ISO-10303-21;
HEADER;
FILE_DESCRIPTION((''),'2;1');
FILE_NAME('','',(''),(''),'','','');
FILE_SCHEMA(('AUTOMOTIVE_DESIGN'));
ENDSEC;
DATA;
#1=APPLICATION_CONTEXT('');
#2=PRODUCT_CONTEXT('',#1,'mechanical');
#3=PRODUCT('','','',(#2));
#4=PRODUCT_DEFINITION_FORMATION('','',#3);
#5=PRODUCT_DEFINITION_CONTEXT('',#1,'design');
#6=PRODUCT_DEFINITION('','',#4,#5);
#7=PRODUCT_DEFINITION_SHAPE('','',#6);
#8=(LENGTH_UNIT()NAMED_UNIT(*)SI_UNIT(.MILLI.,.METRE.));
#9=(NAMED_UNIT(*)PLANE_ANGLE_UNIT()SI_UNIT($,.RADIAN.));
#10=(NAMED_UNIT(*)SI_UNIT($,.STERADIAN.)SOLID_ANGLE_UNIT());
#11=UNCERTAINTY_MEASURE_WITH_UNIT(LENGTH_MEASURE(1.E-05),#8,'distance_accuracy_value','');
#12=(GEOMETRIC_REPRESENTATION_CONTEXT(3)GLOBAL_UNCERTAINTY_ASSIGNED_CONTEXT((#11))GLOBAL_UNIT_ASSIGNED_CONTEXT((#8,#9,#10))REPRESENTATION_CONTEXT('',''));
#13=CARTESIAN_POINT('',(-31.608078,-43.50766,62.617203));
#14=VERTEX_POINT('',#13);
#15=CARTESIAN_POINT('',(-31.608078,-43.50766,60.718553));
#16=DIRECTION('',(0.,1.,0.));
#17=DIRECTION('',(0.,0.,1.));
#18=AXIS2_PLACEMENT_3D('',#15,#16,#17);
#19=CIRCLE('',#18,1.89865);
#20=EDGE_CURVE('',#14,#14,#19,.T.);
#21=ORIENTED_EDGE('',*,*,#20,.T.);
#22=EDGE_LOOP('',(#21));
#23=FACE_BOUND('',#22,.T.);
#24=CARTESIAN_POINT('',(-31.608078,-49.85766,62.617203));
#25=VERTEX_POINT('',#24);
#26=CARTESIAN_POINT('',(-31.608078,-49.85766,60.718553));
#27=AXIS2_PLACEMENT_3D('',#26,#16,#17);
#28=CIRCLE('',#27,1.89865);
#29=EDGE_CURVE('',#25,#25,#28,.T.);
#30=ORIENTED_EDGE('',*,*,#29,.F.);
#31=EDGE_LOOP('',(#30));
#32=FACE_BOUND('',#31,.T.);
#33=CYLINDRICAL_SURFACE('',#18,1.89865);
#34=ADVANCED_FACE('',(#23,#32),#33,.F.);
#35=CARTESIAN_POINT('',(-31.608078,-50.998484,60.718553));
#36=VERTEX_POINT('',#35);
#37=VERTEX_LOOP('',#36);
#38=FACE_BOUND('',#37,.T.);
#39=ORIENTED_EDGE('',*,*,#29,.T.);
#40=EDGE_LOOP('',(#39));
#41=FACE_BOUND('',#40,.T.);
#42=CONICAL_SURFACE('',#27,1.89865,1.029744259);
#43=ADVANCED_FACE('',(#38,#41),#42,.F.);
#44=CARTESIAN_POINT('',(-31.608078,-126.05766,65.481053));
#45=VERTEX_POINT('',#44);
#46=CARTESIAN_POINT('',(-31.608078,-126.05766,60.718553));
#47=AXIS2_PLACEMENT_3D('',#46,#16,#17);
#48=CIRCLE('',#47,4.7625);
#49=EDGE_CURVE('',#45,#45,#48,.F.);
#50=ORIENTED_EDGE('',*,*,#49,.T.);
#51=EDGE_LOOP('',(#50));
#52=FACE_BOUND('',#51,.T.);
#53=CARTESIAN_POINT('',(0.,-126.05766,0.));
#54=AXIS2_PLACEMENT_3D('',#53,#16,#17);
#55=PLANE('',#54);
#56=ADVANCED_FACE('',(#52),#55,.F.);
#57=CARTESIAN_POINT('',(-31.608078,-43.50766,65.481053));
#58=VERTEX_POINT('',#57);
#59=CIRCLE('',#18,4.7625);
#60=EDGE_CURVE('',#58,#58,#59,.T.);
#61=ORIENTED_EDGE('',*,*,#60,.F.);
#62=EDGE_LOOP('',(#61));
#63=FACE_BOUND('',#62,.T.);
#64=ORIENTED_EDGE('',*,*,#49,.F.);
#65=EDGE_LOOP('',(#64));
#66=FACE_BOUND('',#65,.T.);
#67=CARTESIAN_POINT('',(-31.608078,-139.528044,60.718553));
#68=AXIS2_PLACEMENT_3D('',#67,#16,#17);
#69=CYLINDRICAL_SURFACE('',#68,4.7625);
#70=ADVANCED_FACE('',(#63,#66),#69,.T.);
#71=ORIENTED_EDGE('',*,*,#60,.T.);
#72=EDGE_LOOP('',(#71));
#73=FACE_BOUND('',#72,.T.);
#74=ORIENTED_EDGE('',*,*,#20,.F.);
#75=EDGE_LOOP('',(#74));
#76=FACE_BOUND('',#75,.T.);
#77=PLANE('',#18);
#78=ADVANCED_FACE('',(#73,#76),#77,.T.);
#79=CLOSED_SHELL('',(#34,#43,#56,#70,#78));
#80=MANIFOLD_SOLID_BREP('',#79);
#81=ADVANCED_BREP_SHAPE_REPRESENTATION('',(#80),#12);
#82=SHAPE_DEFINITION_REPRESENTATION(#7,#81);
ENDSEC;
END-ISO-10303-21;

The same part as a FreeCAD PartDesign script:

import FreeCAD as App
import Part
import Sketcher
Q = App.Units.Quantity

doc = App.newDocument("Part")
body = doc.addObject("PartDesign::Body", "Body")

# Sketch on XZ plane
sketch1 = body.newObject("Sketcher::SketchObject", "Sketch")
sketch1.AttachmentSupport = (doc.getObject("XZ_Plane"), [""])
sketch1.MapMode = "FlatFace"
sketch1.AttachmentOffset = App.Placement(App.Vector(0, 0, 1.7129 * 25.4), App.Rotation())
sketch1.addGeometry(Part.Circle(App.Vector(-31.608078, 60.718553, 0), App.Vector(0, 0, 1), 4.7625), False)
sketch1.addConstraint(Sketcher.Constraint("Diameter", 0, Q("0.375 in")))
sketch1.addConstraint(Sketcher.Constraint("DistanceX", 0, 3, -1, 1, 31.608078))
sketch1.addConstraint(Sketcher.Constraint("DistanceY", -1, 1, 0, 3, 60.718553))
pad1 = body.newObject("PartDesign::Pad", "Pad")
pad1.Profile = sketch1
pad1.Length = Q("3.25 in")

# Sketch on XZ plane
sketch2 = body.newObject("Sketcher::SketchObject", "Sketch001")
sketch2.AttachmentSupport = (doc.getObject("XZ_Plane"), [""])
sketch2.MapMode = "FlatFace"
sketch2.AttachmentOffset = App.Placement(App.Vector(0, 0, 1.7129 * 25.4), App.Rotation())
sketch2.addGeometry(Part.Circle(App.Vector(-31.608078, 60.718553, 0), App.Vector(0, 0, 1), 1.89865), False)
sketch2.addConstraint(Sketcher.Constraint("Diameter", 0, Q("0.1495 in")))
sketch2.addConstraint(Sketcher.Constraint("DistanceX", 0, 3, -1, 1, 31.608078))
sketch2.addConstraint(Sketcher.Constraint("DistanceY", -1, 1, 0, 3, 60.718553))
doc.recompute()
hole = body.newObject("PartDesign::Hole", "Hole")
hole.Profile = sketch2
hole.ThreadType = "None"
hole.Diameter = Q("0.1495 in")
hole.DepthType = "Dimension"
hole.Depth = Q("0.25 in")
hole.DrillPoint = "Angled"
hole.DrillPointAngle = 118
hole.Reversed = True

doc.recompute()
